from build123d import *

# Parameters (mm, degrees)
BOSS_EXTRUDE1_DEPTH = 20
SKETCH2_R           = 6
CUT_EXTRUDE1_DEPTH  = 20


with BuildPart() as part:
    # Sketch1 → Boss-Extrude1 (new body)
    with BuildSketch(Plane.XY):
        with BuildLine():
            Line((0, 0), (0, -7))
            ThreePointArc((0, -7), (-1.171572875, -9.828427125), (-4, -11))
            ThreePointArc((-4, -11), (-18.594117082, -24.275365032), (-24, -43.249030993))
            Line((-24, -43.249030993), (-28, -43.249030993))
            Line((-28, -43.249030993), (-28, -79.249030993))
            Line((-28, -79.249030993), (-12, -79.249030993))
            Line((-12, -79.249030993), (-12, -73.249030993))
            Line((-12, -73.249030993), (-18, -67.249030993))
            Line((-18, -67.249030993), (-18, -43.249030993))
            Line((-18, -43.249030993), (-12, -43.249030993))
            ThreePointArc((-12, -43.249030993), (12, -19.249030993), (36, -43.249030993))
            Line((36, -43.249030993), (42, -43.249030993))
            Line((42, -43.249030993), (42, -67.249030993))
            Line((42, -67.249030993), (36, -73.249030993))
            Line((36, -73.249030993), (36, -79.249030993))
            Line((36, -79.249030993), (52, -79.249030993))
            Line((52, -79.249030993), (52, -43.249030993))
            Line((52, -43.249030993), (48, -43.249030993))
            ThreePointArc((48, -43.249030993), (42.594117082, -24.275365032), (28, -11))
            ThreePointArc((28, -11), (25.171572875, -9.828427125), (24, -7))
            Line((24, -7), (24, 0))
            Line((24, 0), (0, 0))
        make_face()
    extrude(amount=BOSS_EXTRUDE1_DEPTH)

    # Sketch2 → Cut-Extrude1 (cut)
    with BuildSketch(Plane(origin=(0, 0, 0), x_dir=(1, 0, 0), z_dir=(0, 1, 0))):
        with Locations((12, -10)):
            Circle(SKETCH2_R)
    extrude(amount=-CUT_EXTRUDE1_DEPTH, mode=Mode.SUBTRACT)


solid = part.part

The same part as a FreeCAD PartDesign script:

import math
import FreeCAD as App
import Part
import Sketcher

V = App.Vector
Q = App.Units.Quantity

doc = App.newDocument("Part")
body = doc.addObject("PartDesign::Body", "Body")

sketch1 = body.newObject("Sketcher::SketchObject", "Sketch")
sketch1.AttachmentSupport = (doc.getObject("XY_Plane"), [""])
sketch1.MapMode = "FlatFace"
sketch1.addGeometry([
    Part.LineSegment(V(0, 0, 0), V(0, -7, 0)),
    Part.ArcOfCircle(Part.Circle(V(-4, -7, 0), V(0, 0, 1), 4), math.radians(-90), math.radians(0)),
    Part.ArcOfCircle(Part.Circle(V(12, -43.2, 0), V(0, 0, 1), 36), math.radians(116), math.radians(180)),
    Part.LineSegment(V(-24, -43.2, 0), V(-28, -43.2, 0)),
    Part.LineSegment(V(-28, -43.2, 0), V(-28, -79.2, 0)),
    Part.LineSegment(V(-28, -79.2, 0), V(-12, -79.2, 0)),
    Part.LineSegment(V(-12, -79.2, 0), V(-12, -73.2, 0)),
    Part.LineSegment(V(-12, -73.2, 0), V(-18, -67.2, 0)),
    Part.LineSegment(V(-18, -67.2, 0), V(-18, -43.2, 0)),
    Part.LineSegment(V(-18, -43.2, 0), V(-12, -43.2, 0)),
    Part.ArcOfCircle(Part.Circle(V(12, -43.2, 0), V(0, 0, 1), 24), math.radians(0), math.radians(180)),
    Part.LineSegment(V(36, -43.2, 0), V(42, -43.2, 0)),
    Part.LineSegment(V(42, -43.2, 0), V(42, -67.2, 0)),
    Part.LineSegment(V(42, -67.2, 0), V(36, -73.2, 0)),
    Part.LineSegment(V(36, -73.2, 0), V(36, -79.2, 0)),
    Part.LineSegment(V(36, -79.2, 0), V(52, -79.2, 0)),
    Part.LineSegment(V(52, -79.2, 0), V(52, -43.2, 0)),
    Part.LineSegment(V(52, -43.2, 0), V(48, -43.2, 0)),
    Part.ArcOfCircle(Part.Circle(V(12, -43.2, 0), V(0, 0, 1), 36), math.radians(0), math.radians(64)),
    Part.ArcOfCircle(Part.Circle(V(28, -7, 0), V(0, 0, 1), 4), math.radians(180), math.radians(270)),
    Part.LineSegment(V(24, -7, 0), V(24, 0, 0)),
    Part.LineSegment(V(24, 0, 0), V(0, 0, 0)),
], False)
sketch1.addConstraint([
    Sketcher.Constraint("Tangent", 0, 2, 1, 2),
    Sketcher.Constraint("Coincident", 1, 1, 2, 1),
    Sketcher.Constraint("Coincident", 2, 2, 3, 1),
    Sketcher.Constraint("Coincident", 3, 2, 4, 1),
    Sketcher.Constraint("Coincident", 4, 2, 5, 1),
    Sketcher.Constraint("Coincident", 5, 2, 6, 1),
    Sketcher.Constraint("Coincident", 6, 2, 7, 1),
    Sketcher.Constraint("Coincident", 7, 2, 8, 1),
    Sketcher.Constraint("Coincident", 8, 2, 9, 1),
    Sketcher.Constraint("Coincident", 9, 2, 10, 2),
    Sketcher.Constraint("Coincident", 10, 1, 11, 1),
    Sketcher.Constraint("Coincident", 11, 2, 12, 1),
    Sketcher.Constraint("Coincident", 12, 2, 13, 1),
    Sketcher.Constraint("Coincident", 13, 2, 14, 1),
    Sketcher.Constraint("Coincident", 14, 2, 15, 1),
    Sketcher.Constraint("Coincident", 15, 2, 16, 1),
    Sketcher.Constraint("Coincident", 16, 2, 17, 1),
    Sketcher.Constraint("Coincident", 17, 2, 18, 1),
    Sketcher.Constraint("Coincident", 18, 2, 19, 2),
    Sketcher.Constraint("Tangent", 19, 1, 20, 1),
    Sketcher.Constraint("Coincident", 20, 2, 21, 1),
    Sketcher.Constraint("Coincident", 21, 2, 0, 1),
    Sketcher.Constraint("Vertical", 0),
    Sketcher.Constraint("Horizontal", 3),
    Sketcher.Constraint("Vertical", 4),
    Sketcher.Constraint("Horizontal", 5),
    Sketcher.Constraint("Vertical", 6),
    Sketcher.Constraint("Vertical", 8),
    Sketcher.Constraint("Horizontal", 9),
    Sketcher.Constraint("Horizontal", 11),
    Sketcher.Constraint("Vertical", 12),
    Sketcher.Constraint("Vertical", 14),
    Sketcher.Constraint("Horizontal", 15),
    Sketcher.Constraint("Vertical", 16),
    Sketcher.Constraint("Horizontal", 17),
    Sketcher.Constraint("Vertical", 20),
    Sketcher.Constraint("Horizontal", 21),
    Sketcher.Constraint("Coincident", 21, 2, -1, 1),
    Sketcher.Constraint("Coincident", 10, 3, 2, 3),
    Sketcher.Constraint("Coincident", 18, 3, 2, 3),
    Sketcher.Constraint("Equal", 2, 18),
    Sketcher.Constraint("Equal", 1, 19),
    Sketcher.Constraint("Perpendicular", 7, 13),
    Sketcher.Constraint("Horizontal", 1, 3, 19, 3),
    Sketcher.Constraint("Horizontal", 18, 3, 2, 2),
    Sketcher.Constraint("Horizontal", 3, 2, 8, 2),
    Sketcher.Constraint("Horizontal", 9, 2, 10, 1),
    Sketcher.Constraint("Horizontal", 7, 2, 12, 2),
    Sketcher.Constraint("Horizontal", 6, 2, 13, 2),
    Sketcher.Constraint("Horizontal", 5, 2, 14, 2),
    Sketcher.Constraint("Horizontal", 11, 2, 16, 2),
    Sketcher.Constraint("Vertical", 6, 2, 9, 2),
    Sketcher.Constraint("Vertical", 10, 1, 13, 2),
    Sketcher.Constraint("Vertical", 19, 3, 18, 2),
    Sketcher.Constraint("Equal", 9, 11),
    Sketcher.Constraint("Equal", 5, 15),
    Sketcher.Constraint("Equal", 11, 6),
    Sketcher.Constraint("Equal", 21, 8),
    Sketcher.Constraint("Radius", 1, Q("4 mm")),
    Sketcher.Constraint("Radius", 2, Q("36 mm")),
    Sketcher.Constraint("Radius", 10, Q("24 mm")),
    Sketcher.Constraint("DistanceX", 3, 2, 3, 1, Q("4 mm")),
    Sketcher.Constraint("DistanceX", 9, 1, 9, 2, Q("6 mm")),
    Sketcher.Constraint("DistanceX", 21, 2, 21, 1, Q("24 mm")),
    Sketcher.Constraint("DistanceY", 0, 2, 0, 1, Q("7 mm")),
    Sketcher.Constraint("DistanceX", -1, 1, 2, 3, Q("12 mm")),
])
pad1 = body.newObject("PartDesign::Pad", "Pad")
pad1.Profile = sketch1
pad1.Length = 20

sketch2 = body.newObject("Sketcher::SketchObject", "Sketch001")
sketch2.AttachmentSupport = (doc.getObject("XZ_Plane"), [""])
sketch2.MapMode = "FlatFace"
sketch2.addGeometry(Part.Circle(V(12, 10, 0), V(0, 0, 1), 6), False)
sketch2.addConstraint([
    Sketcher.Constraint("Diameter", 0, Q("12 mm")),
    Sketcher.Constraint("DistanceX", -1, 1, 0, 3, Q("12 mm")),
    Sketcher.Constraint("DistanceY", -1, 1, 0, 3, Q("10 mm")),
])
pocket1 = body.newObject("PartDesign::Pocket", "Pocket")
pocket1.Profile = sketch2
pocket1.Length = 20
pocket1.Reversed = True

doc.recompute()
